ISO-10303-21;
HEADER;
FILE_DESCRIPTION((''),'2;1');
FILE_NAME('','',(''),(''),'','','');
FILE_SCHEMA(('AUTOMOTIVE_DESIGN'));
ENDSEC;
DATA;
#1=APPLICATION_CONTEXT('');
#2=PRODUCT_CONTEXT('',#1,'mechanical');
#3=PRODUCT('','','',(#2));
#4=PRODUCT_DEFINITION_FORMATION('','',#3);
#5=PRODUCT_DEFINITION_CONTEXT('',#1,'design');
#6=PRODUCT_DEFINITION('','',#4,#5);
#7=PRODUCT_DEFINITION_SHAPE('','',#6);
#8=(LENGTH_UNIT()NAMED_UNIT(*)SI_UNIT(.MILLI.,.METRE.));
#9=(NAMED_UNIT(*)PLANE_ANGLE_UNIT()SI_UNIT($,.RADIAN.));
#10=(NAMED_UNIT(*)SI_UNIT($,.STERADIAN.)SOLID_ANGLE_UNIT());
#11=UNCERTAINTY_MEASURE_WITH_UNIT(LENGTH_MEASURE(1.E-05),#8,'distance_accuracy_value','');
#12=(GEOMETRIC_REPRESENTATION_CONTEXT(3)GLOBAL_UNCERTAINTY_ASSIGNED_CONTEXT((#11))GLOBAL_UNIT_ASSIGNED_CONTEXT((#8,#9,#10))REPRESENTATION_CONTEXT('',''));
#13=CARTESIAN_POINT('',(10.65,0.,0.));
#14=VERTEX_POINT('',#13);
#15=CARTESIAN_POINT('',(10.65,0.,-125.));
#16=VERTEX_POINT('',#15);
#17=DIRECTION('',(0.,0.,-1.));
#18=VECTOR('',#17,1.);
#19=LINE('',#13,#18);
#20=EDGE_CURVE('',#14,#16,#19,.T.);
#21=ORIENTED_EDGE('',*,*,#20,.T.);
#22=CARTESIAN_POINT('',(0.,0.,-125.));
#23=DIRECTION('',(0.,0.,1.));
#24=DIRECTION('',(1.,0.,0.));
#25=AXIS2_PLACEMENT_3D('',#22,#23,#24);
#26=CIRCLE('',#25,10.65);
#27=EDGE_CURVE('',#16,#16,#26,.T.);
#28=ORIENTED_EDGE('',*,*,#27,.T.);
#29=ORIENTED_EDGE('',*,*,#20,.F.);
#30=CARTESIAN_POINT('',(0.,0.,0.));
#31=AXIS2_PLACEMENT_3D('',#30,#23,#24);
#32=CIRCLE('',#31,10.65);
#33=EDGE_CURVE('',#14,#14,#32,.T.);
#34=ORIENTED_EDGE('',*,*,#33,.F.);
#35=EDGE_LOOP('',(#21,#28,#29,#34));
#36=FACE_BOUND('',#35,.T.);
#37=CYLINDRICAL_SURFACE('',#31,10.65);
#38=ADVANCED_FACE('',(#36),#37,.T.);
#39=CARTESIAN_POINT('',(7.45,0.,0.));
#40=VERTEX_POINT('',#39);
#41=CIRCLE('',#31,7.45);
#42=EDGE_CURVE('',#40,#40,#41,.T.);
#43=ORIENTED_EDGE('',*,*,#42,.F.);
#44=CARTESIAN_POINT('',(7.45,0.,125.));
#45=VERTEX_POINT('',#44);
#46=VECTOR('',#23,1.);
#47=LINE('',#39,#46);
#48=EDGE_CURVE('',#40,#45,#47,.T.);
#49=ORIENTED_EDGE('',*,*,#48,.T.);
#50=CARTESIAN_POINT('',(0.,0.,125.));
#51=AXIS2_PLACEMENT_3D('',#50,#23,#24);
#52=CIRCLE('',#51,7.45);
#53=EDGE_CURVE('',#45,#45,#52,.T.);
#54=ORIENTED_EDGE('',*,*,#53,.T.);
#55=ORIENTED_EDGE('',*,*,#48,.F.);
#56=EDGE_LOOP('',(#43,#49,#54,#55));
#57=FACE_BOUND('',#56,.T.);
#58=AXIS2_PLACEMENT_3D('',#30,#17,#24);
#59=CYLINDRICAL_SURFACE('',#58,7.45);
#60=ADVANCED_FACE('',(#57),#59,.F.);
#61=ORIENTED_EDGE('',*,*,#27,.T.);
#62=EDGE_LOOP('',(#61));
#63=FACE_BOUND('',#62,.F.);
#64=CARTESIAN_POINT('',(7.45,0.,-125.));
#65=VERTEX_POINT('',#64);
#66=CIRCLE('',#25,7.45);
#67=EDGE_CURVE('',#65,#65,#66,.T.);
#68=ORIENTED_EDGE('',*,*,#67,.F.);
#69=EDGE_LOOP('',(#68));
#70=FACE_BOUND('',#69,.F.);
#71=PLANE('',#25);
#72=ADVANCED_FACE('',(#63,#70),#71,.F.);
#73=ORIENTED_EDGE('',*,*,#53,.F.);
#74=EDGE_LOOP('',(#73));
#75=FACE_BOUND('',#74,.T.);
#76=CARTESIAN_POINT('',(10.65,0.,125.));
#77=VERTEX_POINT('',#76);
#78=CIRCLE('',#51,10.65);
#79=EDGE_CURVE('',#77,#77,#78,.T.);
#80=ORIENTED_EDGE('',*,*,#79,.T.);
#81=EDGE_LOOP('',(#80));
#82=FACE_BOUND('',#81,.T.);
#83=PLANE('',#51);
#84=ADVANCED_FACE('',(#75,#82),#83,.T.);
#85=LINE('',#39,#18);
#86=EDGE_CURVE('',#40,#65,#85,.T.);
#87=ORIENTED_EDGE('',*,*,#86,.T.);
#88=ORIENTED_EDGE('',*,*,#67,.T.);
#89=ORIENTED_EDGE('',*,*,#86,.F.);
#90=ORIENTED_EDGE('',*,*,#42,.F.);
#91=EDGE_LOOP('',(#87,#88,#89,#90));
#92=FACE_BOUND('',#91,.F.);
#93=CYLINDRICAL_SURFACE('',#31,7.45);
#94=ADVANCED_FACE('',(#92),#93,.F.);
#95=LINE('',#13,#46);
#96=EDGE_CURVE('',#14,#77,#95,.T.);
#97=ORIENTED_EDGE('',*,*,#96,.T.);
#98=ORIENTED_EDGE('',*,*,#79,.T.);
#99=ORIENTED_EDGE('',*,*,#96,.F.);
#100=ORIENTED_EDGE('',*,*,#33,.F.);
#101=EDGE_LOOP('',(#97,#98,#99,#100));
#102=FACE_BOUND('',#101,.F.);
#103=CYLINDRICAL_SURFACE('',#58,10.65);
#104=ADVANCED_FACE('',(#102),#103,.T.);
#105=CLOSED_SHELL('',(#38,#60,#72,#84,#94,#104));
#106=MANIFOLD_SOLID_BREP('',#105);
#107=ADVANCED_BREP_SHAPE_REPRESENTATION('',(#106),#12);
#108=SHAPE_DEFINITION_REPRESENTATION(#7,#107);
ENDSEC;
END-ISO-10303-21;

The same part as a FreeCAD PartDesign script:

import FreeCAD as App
import Part
import Sketcher

V = App.Vector
Q = App.Units.Quantity

doc = App.newDocument("Part")
body = doc.addObject("PartDesign::Body", "Body")

sketch1 = body.newObject("Sketcher::SketchObject", "Sketch")
sketch1.AttachmentSupport = (doc.getObject("XY_Plane"), [""])
sketch1.MapMode = "FlatFace"
sketch1.addGeometry([
    Part.Circle(V(0, 0, 0), V(0, 0, 1), 10.65),
    Part.Circle(V(0, 0, 0), V(0, 0, 1), 7.45),
], False)
sketch1.addConstraint([
    Sketcher.Constraint("Coincident", 0, 3, -1, 1),
    Sketcher.Constraint("Coincident", 1, 3, -1, 1),
    Sketcher.Constraint("Diameter", 0, Q("21.3 mm")),
    Sketcher.Constraint("Diameter", 1, Q("14.9 mm")),
])
pad1 = body.newObject("PartDesign::Pad", "Pad")
pad1.Profile = sketch1
pad1.Length = 250
pad1.Midplane = True

doc.recompute()
